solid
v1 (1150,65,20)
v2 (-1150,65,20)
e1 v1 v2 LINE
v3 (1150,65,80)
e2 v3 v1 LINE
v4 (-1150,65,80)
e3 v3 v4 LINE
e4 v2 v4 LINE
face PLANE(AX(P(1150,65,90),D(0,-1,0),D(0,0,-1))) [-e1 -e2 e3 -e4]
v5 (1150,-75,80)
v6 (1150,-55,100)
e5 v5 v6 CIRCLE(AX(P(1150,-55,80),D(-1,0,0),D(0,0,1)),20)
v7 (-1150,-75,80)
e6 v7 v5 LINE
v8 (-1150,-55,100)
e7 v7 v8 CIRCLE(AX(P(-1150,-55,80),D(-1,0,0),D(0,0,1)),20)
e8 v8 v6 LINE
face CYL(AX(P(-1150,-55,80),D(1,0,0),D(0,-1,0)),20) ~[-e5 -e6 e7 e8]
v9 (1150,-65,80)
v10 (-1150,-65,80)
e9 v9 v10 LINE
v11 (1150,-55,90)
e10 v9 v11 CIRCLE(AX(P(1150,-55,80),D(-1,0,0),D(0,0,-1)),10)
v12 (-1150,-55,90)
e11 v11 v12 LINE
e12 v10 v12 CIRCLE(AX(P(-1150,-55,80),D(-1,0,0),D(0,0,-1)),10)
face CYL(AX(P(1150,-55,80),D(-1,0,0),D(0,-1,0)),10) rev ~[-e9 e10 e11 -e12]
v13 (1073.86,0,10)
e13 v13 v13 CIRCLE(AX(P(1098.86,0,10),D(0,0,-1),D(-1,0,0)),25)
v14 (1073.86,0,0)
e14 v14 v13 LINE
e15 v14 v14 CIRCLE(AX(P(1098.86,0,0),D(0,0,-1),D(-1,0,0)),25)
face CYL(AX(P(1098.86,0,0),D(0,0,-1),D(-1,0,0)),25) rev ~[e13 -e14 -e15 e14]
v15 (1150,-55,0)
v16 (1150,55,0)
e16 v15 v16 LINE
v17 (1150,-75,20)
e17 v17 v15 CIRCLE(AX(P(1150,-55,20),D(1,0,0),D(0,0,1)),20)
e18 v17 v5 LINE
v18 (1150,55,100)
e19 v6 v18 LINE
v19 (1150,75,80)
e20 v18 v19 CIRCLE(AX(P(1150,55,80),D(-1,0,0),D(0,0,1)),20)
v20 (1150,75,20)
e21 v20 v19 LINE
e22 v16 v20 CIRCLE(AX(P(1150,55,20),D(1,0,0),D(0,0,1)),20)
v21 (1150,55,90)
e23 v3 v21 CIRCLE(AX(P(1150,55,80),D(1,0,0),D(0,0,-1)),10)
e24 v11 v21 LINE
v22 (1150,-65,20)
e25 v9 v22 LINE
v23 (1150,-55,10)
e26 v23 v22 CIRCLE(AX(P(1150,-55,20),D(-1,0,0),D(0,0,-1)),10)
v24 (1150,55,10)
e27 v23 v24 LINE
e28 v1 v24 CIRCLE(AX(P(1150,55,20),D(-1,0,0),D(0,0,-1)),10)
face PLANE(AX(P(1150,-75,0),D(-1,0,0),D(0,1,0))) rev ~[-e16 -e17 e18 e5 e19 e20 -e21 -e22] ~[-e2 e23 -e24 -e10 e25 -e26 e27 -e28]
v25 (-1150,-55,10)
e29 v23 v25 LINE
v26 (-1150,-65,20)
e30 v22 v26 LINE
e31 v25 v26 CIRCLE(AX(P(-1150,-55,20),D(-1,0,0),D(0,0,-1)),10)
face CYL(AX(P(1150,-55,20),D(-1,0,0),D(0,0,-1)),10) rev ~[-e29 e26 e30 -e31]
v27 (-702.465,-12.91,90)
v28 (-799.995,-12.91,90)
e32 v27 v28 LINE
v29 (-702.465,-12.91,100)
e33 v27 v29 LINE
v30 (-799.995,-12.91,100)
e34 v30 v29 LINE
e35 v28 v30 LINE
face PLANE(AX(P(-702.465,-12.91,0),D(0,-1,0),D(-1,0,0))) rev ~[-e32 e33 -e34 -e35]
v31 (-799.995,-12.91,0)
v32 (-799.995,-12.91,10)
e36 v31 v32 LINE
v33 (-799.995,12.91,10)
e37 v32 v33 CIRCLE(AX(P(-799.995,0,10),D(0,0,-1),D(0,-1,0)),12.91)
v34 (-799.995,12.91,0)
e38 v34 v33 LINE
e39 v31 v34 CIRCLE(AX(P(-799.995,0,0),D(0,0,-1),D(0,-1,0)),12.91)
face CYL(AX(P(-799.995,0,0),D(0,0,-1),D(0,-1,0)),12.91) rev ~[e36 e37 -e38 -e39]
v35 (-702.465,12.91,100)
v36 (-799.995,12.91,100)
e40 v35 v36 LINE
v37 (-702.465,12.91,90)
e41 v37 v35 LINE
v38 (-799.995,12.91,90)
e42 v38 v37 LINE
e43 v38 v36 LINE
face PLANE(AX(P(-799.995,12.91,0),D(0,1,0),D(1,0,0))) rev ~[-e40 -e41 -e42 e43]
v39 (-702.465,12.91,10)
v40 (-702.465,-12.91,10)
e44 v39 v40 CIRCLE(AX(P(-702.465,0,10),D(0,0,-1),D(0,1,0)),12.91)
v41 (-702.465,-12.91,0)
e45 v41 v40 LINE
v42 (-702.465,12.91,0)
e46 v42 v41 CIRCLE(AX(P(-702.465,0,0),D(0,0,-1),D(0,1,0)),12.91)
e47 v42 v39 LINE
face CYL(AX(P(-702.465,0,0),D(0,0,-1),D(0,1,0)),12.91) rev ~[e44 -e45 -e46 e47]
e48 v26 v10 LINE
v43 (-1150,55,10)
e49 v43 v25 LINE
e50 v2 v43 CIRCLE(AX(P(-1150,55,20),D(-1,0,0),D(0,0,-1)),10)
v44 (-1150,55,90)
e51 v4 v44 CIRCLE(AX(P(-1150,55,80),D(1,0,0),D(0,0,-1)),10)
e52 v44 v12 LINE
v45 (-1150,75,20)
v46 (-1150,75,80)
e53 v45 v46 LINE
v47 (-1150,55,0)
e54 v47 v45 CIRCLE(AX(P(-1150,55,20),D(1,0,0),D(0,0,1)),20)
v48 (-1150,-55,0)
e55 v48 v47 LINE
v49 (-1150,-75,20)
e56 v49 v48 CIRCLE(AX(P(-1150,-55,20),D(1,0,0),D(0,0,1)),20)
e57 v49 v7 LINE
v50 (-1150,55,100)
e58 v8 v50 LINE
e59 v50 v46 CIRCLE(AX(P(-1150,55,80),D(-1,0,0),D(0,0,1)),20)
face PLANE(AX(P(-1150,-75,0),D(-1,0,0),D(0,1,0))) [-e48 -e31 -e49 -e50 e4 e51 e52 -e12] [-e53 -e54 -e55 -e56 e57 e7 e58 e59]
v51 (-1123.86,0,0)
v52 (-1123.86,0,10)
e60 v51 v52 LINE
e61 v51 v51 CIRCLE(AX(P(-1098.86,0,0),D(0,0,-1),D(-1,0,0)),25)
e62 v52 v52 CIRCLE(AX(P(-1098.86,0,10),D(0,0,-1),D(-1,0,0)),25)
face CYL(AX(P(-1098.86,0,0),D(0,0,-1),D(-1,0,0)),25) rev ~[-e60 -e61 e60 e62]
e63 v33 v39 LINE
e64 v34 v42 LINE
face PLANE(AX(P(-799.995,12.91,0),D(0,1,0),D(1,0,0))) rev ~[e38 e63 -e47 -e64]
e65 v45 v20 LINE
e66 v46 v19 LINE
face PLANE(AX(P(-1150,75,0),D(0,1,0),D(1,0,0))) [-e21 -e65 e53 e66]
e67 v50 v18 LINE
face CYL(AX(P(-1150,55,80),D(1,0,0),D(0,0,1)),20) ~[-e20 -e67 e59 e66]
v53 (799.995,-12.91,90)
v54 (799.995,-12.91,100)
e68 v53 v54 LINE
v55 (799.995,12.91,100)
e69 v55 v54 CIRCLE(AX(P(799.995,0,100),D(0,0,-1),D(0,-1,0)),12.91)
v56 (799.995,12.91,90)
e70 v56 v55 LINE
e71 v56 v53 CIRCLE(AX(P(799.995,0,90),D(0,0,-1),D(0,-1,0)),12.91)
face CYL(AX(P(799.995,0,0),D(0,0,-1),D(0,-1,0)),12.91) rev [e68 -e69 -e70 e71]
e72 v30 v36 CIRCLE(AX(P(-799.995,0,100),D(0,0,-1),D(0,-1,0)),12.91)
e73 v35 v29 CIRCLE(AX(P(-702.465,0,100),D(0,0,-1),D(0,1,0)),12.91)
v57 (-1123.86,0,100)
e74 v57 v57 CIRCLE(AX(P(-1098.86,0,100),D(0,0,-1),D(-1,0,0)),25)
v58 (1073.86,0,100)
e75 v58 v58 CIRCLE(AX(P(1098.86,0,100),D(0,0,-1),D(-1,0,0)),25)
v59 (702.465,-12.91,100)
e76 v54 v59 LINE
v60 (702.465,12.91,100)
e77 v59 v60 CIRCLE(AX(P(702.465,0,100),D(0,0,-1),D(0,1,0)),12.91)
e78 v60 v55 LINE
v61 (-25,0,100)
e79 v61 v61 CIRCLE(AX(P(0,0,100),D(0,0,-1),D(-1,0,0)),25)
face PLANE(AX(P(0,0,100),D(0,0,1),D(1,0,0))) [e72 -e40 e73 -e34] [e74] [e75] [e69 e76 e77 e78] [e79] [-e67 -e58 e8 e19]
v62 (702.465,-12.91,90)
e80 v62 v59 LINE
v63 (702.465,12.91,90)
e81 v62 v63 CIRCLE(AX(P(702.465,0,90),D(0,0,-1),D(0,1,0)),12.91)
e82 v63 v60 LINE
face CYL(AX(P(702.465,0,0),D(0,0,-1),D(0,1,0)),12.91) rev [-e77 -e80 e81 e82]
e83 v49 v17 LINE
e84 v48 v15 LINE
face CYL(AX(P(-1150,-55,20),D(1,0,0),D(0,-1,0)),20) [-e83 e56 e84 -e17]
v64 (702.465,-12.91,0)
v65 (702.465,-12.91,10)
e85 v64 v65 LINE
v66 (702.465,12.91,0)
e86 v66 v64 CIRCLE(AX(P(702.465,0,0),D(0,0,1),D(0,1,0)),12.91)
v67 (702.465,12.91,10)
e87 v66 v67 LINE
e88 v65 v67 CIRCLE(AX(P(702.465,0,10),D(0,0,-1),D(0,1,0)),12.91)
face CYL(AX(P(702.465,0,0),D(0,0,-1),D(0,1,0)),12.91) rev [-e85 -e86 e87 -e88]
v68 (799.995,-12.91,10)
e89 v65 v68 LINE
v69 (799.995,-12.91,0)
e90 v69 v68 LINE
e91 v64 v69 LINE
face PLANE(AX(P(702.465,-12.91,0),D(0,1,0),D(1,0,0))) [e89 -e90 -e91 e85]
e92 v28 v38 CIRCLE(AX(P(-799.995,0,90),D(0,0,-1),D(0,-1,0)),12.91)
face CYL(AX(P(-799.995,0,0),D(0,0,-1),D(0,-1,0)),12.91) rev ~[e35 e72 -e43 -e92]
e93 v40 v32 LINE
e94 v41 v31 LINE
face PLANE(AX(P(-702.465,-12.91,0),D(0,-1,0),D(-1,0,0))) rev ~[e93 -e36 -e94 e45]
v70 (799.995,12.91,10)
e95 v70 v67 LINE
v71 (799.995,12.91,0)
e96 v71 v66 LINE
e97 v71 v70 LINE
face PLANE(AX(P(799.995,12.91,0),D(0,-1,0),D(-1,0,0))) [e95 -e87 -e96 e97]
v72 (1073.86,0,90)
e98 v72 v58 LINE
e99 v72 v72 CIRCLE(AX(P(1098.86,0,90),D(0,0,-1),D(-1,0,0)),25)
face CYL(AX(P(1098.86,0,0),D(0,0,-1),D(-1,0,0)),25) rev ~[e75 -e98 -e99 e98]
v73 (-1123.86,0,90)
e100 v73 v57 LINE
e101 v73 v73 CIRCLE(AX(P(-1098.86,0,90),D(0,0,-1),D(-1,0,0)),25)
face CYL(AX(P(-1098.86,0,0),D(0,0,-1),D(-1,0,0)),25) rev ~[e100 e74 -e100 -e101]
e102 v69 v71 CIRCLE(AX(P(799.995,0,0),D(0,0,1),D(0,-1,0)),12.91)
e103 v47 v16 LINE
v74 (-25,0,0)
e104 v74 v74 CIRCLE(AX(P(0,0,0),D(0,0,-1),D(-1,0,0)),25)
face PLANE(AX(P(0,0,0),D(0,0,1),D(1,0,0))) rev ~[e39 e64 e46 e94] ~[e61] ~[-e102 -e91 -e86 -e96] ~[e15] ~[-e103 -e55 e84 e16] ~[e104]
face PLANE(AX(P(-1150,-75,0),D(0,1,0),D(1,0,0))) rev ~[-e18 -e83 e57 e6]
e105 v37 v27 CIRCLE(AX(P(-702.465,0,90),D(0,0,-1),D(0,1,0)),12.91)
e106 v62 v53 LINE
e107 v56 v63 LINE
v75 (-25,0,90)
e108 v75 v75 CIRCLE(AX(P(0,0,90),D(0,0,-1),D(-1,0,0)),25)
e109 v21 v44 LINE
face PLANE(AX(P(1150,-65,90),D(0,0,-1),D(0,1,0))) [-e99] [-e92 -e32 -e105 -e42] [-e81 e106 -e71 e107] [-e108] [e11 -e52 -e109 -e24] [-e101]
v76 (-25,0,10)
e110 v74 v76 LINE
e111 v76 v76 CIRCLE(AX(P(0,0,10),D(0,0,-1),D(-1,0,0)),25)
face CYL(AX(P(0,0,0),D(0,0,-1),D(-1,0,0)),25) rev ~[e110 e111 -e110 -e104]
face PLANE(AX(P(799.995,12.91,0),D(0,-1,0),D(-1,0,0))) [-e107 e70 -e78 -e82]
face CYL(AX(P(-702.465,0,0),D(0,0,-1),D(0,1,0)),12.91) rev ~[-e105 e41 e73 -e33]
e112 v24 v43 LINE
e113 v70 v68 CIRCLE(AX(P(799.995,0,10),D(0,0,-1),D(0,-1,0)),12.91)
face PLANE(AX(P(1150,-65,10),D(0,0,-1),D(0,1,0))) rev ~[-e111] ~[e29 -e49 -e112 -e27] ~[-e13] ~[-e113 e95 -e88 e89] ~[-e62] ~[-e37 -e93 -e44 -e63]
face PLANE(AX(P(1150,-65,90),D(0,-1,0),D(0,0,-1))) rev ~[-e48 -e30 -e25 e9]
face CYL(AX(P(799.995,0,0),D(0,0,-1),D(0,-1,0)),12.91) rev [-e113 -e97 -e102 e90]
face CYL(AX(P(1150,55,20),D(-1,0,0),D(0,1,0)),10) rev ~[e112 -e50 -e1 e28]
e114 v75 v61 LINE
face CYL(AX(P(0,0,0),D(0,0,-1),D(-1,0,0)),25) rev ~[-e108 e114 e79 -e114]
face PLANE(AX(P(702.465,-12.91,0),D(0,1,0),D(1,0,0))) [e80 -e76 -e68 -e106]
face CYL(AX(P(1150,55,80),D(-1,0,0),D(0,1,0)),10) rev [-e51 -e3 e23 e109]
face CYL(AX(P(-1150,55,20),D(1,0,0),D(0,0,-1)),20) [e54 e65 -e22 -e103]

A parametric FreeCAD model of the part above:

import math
import FreeCAD as App
import Part
import Sketcher
Q = App.Units.Quantity


def edges_at(feature, points):
    """Names of the edges that pass closest to the given points."""
    edges = feature.Shape.Edges
    near = lambda p: min(range(len(edges)), key=lambda i: edges[i].distToShape(Part.Vertex(*p))[0])
    return sorted({f"Edge{near(p) + 1}" for p in points})


def add_polygon(sketch, points):
    """Adds a closed chain of lines whose ends are joined by coincident constraints."""
    first, n = sketch.GeometryCount, len(points)
    for a, b in zip(points, points[1:] + points[:1]):
        sketch.addGeometry(Part.LineSegment(App.Vector(*a, 0), App.Vector(*b, 0)), False)
    for i in range(n):
        sketch.addConstraint(Sketcher.Constraint("Coincident", first + i, 2, first + (i + 1) % n, 1))

doc = App.newDocument("Part")
params = doc.addObject("Spreadsheet::Sheet", "Params")
for row, (alias, value) in enumerate([
    ("sketch1_width", "2300 mm"),
    ("sketch1_height", "150 mm"),
    ("pad1_length", "100 mm"),
    ("sketch2_width", "130 mm"),
    ("sketch2_height", "80 mm"),
    ("fillet_radius", "10 mm"),
    ("fillet2_radius", "20 mm"),
    ("sketch3_diameter", "50 mm"),
    ("sketch4_radius", "12.91 mm"),
    ("sketch4_width", "97.53 mm"),
], start=1):
    params.set(f"A{row}", alias)
    params.set(f"B{row}", "=" + value)
    params.setAlias(f"B{row}", alias)

body = doc.addObject("PartDesign::Body", "Body")

# Sketch on XY plane
sketch1 = body.newObject("Sketcher::SketchObject", "Sketch")
sketch1.AttachmentSupport = (doc.getObject("XY_Plane"), [""])
sketch1.MapMode = "FlatFace"
add_polygon(sketch1, [(-1150, 75), (-1150, -75), (1150, -75), (1150, 75)])  # lines 0-3
sketch1.addConstraint([
    Sketcher.Constraint("Vertical", 0),
    Sketcher.Constraint("Horizontal", 1),
    Sketcher.Constraint("Vertical", 2),
    Sketcher.Constraint("Horizontal", 3),
    Sketcher.Constraint("Symmetric", 0, 2, 2, 2, -1, 1),
    Sketcher.Constraint("DistanceX", 1, 1, 1, 2, Q("2300 mm")),
    Sketcher.Constraint("DistanceY", 0, 2, 0, 1, Q("150 mm")),
])
sketch1.setExpression("Constraints[9]", "Params.sketch1_width")
sketch1.setExpression("Constraints[10]", "Params.sketch1_height")
pad1 = body.newObject("PartDesign::Pad", "Pad")
pad1.Profile = sketch1
pad1.setExpression("Length", "Params.pad1_length")

# Sketch on YZ plane
sketch2 = body.newObject("Sketcher::SketchObject", "Sketch001")
sketch2.AttachmentSupport = (doc.getObject("YZ_Plane"), [""])
sketch2.MapMode = "FlatFace"
sketch2.AttachmentOffset = App.Placement(App.Vector(0, 0, 1150), App.Rotation())
add_polygon(sketch2, [(65, 90), (-65, 90), (-65, 10), (65, 10)])  # lines 0-3
sketch2.addConstraint([
    Sketcher.Constraint("Horizontal", 0),
    Sketcher.Constraint("Vertical", 1),
    Sketcher.Constraint("Horizontal", 2),
    Sketcher.Constraint("Vertical", 3),
    Sketcher.Constraint("DistanceX", 0, 2, 0, 1, Q("130 mm")),
    Sketcher.Constraint("DistanceY", 1, 2, 1, 1, Q("80 mm")),
    Sketcher.Constraint("DistanceX", 0, 2, -1, 1, Q("65 mm")),
    Sketcher.Constraint("DistanceY", -1, 1, 0, 2, Q("90 mm")),
])
sketch2.setExpression("Constraints[8]", "Params.sketch2_width")
sketch2.setExpression("Constraints[9]", "Params.sketch2_height")
pocket1 = body.newObject("PartDesign::Pocket", "Pocket")
pocket1.Profile = sketch2
pocket1.Type = "ThroughAll"
doc.recompute()

fillet = body.newObject("PartDesign::Fillet", "Fillet")
fillet.Base = (pocket1, edges_at(pocket1, [
    (0, 65, 90),
    (0, 65, 10),
    (0, -65, 10),
    (0, -65, 90),
]))
fillet.setExpression("Radius", "Params.fillet_radius")
doc.recompute()

fillet2 = body.newObject("PartDesign::Fillet", "Fillet001")
fillet2.Base = (fillet, edges_at(fillet, [
    (0, -75, 100),
    (0, -75, 0),
    (0, 75, 0),
    (0, 75, 100),
]))
fillet2.setExpression("Radius", "Params.fillet2_radius")

# Sketch on XY plane
sketch3 = body.newObject("Sketcher::SketchObject", "Sketch002")
sketch3.AttachmentSupport = (doc.getObject("XY_Plane"), [""])
sketch3.MapMode = "FlatFace"
sketch3.addGeometry([
    Part.Circle(App.Vector(0, 0, 0), App.Vector(0, 0, 1), 25),
    Part.Circle(App.Vector(1099, 0, 0), App.Vector(0, 0, 1), 25),
    Part.Circle(App.Vector(-1099, 0, 0), App.Vector(0, 0, 1), 25),
], False)
sketch3.addConstraint([
    Sketcher.Constraint("Coincident", 0, 3, -1, 1),
    Sketcher.Constraint("Equal", 0, 1),
    Sketcher.Constraint("Equal", 1, 2),
    Sketcher.Constraint("Symmetric", 1, 3, 2, 3, -1, 1),
    Sketcher.Constraint("PointOnObject", 1, 3, -1),
    Sketcher.Constraint("Diameter", 0, Q("50 mm")),
    Sketcher.Constraint("DistanceX", -1, 1, 1, 3, Q("1098.86 mm")),
])
sketch3.setExpression("Constraints[5]", "Params.sketch3_diameter")
pocket2 = body.newObject("PartDesign::Pocket", "Pocket001")
pocket2.Profile = sketch3
pocket2.Type = "ThroughAll"
pocket2.Reversed = True

# Sketch on XY plane
sketch4 = body.newObject("Sketcher::SketchObject", "Sketch003")
sketch4.AttachmentSupport = (doc.getObject("XY_Plane"), [""])
sketch4.MapMode = "FlatFace"
sketch4.addGeometry([
    Part.LineSegment(App.Vector(702, 13, 0), App.Vector(800, 13, 0)),  # 0
    Part.ArcOfCircle(Part.Circle(App.Vector(800, 0, 0), App.Vector(0, 0, 1), 13), math.radians(-90), math.radians(90)),  # 1
    Part.LineSegment(App.Vector(800, -13, 0), App.Vector(702, -13, 0)),  # 2
    Part.ArcOfCircle(Part.Circle(App.Vector(702, 0, 0), App.Vector(0, 0, 1), 13), math.radians(90), math.radians(270)),  # 3
    Part.LineSegment(App.Vector(-800, 13, 0), App.Vector(-702, 13, 0)),  # 4
    Part.ArcOfCircle(Part.Circle(App.Vector(-702, 0, 0), App.Vector(0, 0, 1), 13), math.radians(-90), math.radians(90)),  # 5
    Part.LineSegment(App.Vector(-702, -13, 0), App.Vector(-800, -13, 0)),  # 6
    Part.ArcOfCircle(Part.Circle(App.Vector(-800, 0, 0), App.Vector(0, 0, 1), 13), math.radians(90), math.radians(270)),  # 7
], False)
sketch4.addConstraint([
    Sketcher.Constraint("Tangent", 0, 2, 1, 2),
    Sketcher.Constraint("Tangent", 1, 1, 2, 1),
    Sketcher.Constraint("Tangent", 2, 2, 3, 2),
    Sketcher.Constraint("Tangent", 3, 1, 0, 1),
    Sketcher.Constraint("Tangent", 4, 2, 5, 2),
    Sketcher.Constraint("Tangent", 5, 1, 6, 1),
    Sketcher.Constraint("Tangent", 6, 2, 7, 2),
    Sketcher.Constraint("Tangent", 7, 1, 4, 1),
    Sketcher.Constraint("Horizontal", 0),
    Sketcher.Constraint("Horizontal", 2),
    Sketcher.Constraint("Horizontal", 4),
    Sketcher.Constraint("Horizontal", 6),
    Sketcher.Constraint("Equal", 3, 5),
    Sketcher.Constraint("Symmetric", 3, 3, 5, 3, -1, 1),
    Sketcher.Constraint("Symmetric", 1, 3, 7, 3, -2),
    Sketcher.Constraint("Radius", 1, Q("12.91 mm")),
    Sketcher.Constraint("DistanceX", 0, 1, 0, 2, Q("97.53 mm")),
    Sketcher.Constraint("DistanceX", 5, 3, 3, 3, Q("1404.93 mm")),
])
sketch4.setExpression("Constraints[15]", "Params.sketch4_radius")
sketch4.setExpression("Constraints[16]", "Params.sketch4_width")
pocket3 = body.newObject("PartDesign::Pocket", "Pocket002")
pocket3.Profile = sketch4
pocket3.Type = "ThroughAll"
pocket3.Reversed = True

doc.recompute()
